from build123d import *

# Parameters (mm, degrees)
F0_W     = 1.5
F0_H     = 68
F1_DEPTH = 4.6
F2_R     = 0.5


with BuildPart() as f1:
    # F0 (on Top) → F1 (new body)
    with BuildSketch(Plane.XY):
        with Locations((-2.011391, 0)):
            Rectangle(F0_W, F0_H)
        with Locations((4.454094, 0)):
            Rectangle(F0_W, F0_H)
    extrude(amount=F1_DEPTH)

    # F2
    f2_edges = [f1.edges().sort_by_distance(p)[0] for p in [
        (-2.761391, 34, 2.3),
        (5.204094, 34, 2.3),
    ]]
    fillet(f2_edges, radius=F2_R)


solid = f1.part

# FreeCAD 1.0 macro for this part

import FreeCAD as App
import Part
import Sketcher
from FreeCAD import Vector


def edges_at(feature, points):
    """Names of the edges that pass closest to the given points."""
    edges = feature.Shape.Edges
    near = lambda p: min(range(len(edges)), key=lambda i: edges[i].distToShape(Part.Vertex(*p))[0])
    return sorted({f"Edge{near(p) + 1}" for p in points})

doc = App.newDocument("Part")
body = doc.addObject("PartDesign::Body", "Body")
body.AllowCompound = True

# Sketch on XY plane
sketch1 = doc.addObject("Sketcher::SketchObject", "Sketch")
body.addObject(sketch1)
sketch1.AttachmentSupport = (doc.XY_Plane, [""])
sketch1.MapMode = "FlatFace"
sketch1.addGeometry(Part.LineSegment(Vector(-2.761391, 34, 0), Vector(-2.761391, -34, 0)), False)
sketch1.addGeometry(Part.LineSegment(Vector(-2.761391, -34, 0), Vector(-1.261391, -34, 0)), False)
sketch1.addGeometry(Part.LineSegment(Vector(-1.261391, -34, 0), Vector(-1.261391, 34, 0)), False)
sketch1.addGeometry(Part.LineSegment(Vector(-1.261391, 34, 0), Vector(-2.761391, 34, 0)), False)
sketch1.addGeometry(Part.LineSegment(Vector(3.704094, 34, 0), Vector(3.704094, -34, 0)), False)
sketch1.addGeometry(Part.LineSegment(Vector(3.704094, -34, 0), Vector(5.204094, -34, 0)), False)
sketch1.addGeometry(Part.LineSegment(Vector(5.204094, -34, 0), Vector(5.204094, 34, 0)), False)
sketch1.addGeometry(Part.LineSegment(Vector(5.204094, 34, 0), Vector(3.704094, 34, 0)), False)
sketch1.addConstraint(Sketcher.Constraint("Coincident", 0, 2, 1, 1))
sketch1.addConstraint(Sketcher.Constraint("Coincident", 1, 2, 2, 1))
sketch1.addConstraint(Sketcher.Constraint("Coincident", 2, 2, 3, 1))
sketch1.addConstraint(Sketcher.Constraint("Coincident", 3, 2, 0, 1))
sketch1.addConstraint(Sketcher.Constraint("Coincident", 4, 2, 5, 1))
sketch1.addConstraint(Sketcher.Constraint("Coincident", 5, 2, 6, 1))
sketch1.addConstraint(Sketcher.Constraint("Coincident", 6, 2, 7, 1))
sketch1.addConstraint(Sketcher.Constraint("Coincident", 7, 2, 4, 1))
sketch1.addConstraint(Sketcher.Constraint("Vertical", 0))
sketch1.addConstraint(Sketcher.Constraint("Horizontal", 1))
sketch1.addConstraint(Sketcher.Constraint("Vertical", 2))
sketch1.addConstraint(Sketcher.Constraint("Horizontal", 3))
sketch1.addConstraint(Sketcher.Constraint("Vertical", 4))
sketch1.addConstraint(Sketcher.Constraint("Horizontal", 5))
sketch1.addConstraint(Sketcher.Constraint("Vertical", 6))
sketch1.addConstraint(Sketcher.Constraint("Horizontal", 7))
sketch1.addConstraint(Sketcher.Constraint("Horizontal", 1, 2, 4, 2))
sketch1.addConstraint(Sketcher.Constraint("Horizontal", 3, 2, 6, 2))
sketch1.addConstraint(Sketcher.Constraint("Equal", 3, 5))
sketch1.addConstraint(Sketcher.Constraint("DistanceY", 0, 2, 0, 1, 68.0))
sketch1.addConstraint(Sketcher.Constraint("DistanceX", 1, 1, 1, 2, 1.5))
sketch1.addConstraint(Sketcher.Constraint("DistanceY", 0, 2, -1, 1, 34.0))
sketch1.addConstraint(Sketcher.Constraint("DistanceX", 0, 2, -1, 1, 2.761391))
sketch1.addConstraint(Sketcher.Constraint("DistanceX", -1, 1, 4, 2, 3.704094))
pad1 = doc.addObject("PartDesign::Pad", "Pad")
body.addObject(pad1)
pad1.Profile = sketch1
pad1.Length = 4.6
doc.recompute()

fillet = doc.addObject("PartDesign::Fillet", "Fillet")
body.addObject(fillet)
fillet.Base = (pad1, edges_at(pad1, [(-2.761, 34, 2.3), (5.204, 34, 2.3)]))
fillet.Radius = 0.5

doc.recompute()
